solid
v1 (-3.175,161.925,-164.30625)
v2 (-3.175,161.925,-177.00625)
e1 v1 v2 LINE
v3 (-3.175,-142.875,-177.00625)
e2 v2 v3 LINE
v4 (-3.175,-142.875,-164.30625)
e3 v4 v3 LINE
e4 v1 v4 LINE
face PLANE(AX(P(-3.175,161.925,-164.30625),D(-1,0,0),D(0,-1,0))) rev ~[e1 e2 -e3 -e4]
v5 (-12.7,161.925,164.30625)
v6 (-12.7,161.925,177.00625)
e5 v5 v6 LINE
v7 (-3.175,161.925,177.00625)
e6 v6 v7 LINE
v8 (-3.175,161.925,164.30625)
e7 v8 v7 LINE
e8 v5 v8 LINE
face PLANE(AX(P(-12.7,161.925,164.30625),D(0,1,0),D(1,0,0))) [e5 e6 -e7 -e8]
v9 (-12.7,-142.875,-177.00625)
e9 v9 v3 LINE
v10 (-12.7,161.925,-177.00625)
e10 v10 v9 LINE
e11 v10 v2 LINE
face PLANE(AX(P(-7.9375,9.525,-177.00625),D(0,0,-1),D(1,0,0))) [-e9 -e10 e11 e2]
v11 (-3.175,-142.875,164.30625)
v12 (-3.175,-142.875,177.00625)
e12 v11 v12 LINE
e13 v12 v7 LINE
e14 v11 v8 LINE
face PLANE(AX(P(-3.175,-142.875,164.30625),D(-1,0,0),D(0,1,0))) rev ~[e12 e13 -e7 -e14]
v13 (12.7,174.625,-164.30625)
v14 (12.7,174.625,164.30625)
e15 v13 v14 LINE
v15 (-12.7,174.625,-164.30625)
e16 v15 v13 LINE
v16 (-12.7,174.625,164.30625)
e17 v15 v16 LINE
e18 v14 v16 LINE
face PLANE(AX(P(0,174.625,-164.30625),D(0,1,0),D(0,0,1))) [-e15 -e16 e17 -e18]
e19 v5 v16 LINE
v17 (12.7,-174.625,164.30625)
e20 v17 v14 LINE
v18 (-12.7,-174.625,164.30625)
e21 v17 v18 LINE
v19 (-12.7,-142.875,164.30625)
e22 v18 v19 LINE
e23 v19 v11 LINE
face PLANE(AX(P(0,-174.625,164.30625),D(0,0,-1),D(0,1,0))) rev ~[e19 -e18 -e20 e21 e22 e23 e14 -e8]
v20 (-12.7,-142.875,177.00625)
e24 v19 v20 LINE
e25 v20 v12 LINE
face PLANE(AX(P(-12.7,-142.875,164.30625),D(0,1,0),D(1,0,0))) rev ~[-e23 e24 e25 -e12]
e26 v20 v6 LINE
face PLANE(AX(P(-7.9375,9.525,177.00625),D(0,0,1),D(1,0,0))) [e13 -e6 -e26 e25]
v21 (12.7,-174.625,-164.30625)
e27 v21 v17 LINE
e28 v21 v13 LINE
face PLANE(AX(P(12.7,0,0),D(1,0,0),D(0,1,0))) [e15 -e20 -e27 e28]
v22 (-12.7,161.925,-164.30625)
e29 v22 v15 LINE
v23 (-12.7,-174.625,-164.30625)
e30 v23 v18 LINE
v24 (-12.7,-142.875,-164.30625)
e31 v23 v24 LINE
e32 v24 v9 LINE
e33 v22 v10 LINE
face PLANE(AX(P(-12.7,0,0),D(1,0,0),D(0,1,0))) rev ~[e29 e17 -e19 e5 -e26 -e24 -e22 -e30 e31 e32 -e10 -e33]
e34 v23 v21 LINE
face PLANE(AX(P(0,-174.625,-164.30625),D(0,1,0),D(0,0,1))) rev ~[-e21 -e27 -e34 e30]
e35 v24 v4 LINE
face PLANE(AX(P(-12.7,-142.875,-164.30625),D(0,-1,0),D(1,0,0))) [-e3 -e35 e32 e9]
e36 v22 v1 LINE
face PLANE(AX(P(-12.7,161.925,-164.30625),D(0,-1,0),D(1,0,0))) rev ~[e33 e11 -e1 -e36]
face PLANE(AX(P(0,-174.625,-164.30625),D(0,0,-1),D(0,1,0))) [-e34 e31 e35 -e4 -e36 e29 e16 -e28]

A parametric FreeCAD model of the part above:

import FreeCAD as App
import Part
import Sketcher
Q = App.Units.Quantity

doc = App.newDocument("Part")
params = doc.addObject("Spreadsheet::Sheet", "Params")
for row, (alias, value) in enumerate([
    ("sketch1_width", "13.75 in"),
    ("sketch1_height", "12.9375 in"),
    ("pad1_length", "1 in"),
    ("sketch2_height", "12 in"),
    ("sketch2_width", "0.375 in"),
    ("pad2_length", "0.5 in"),
    ("sketch3_height", "12 in"),
    ("sketch3_width", "0.375 in"),
    ("pad3_length", "0.5 in"),
], start=1):
    params.set(f"A{row}", alias)
    params.set(f"B{row}", "=" + value)
    params.setAlias(f"B{row}", alias)

body = doc.addObject("PartDesign::Body", "Body")

# Sketch on YZ plane
sketch1 = body.newObject("Sketcher::SketchObject", "Sketch")
sketch1.AttachmentSupport = (doc.getObject("YZ_Plane"), [""])
sketch1.MapMode = "FlatFace"
sketch1.addGeometry([
    Part.LineSegment(App.Vector(-175, 164, 0), App.Vector(-175, -164, 0)),
    Part.LineSegment(App.Vector(-175, -164, 0), App.Vector(175, -164, 0)),
    Part.LineSegment(App.Vector(175, -164, 0), App.Vector(175, 164, 0)),
    Part.LineSegment(App.Vector(175, 164, 0), App.Vector(-175, 164, 0)),
], False)
sketch1.addConstraint([
    Sketcher.Constraint("Coincident", 0, 2, 1, 1),
    Sketcher.Constraint("Coincident", 1, 2, 2, 1),
    Sketcher.Constraint("Coincident", 2, 2, 3, 1),
    Sketcher.Constraint("Coincident", 3, 2, 0, 1),
    Sketcher.Constraint("Vertical", 0),
    Sketcher.Constraint("Horizontal", 1),
    Sketcher.Constraint("Vertical", 2),
    Sketcher.Constraint("Horizontal", 3),
    Sketcher.Constraint("Symmetric", 0, 2, 2, 2, -1, 1),
    Sketcher.Constraint("DistanceX", 1, 1, 1, 2, Q("13.75 in")),
    Sketcher.Constraint("DistanceY", 0, 2, 0, 1, Q("12.9375 in")),
])
sketch1.setExpression("Constraints[9]", "Params.sketch1_width")
sketch1.setExpression("Constraints[10]", "Params.sketch1_height")
pad1 = body.newObject("PartDesign::Pad", "Pad")
pad1.Profile = sketch1
pad1.setExpression("Length", "Params.pad1_length")
pad1.Midplane = True

# Sketch on XY plane
sketch2 = body.newObject("Sketcher::SketchObject", "Sketch001")
sketch2.AttachmentSupport = (doc.getObject("XY_Plane"), [""])
sketch2.MapMode = "FlatFace"
sketch2.AttachmentOffset = App.Placement(App.Vector(0, 0, 6.46875 * 25.4), App.Rotation())
sketch2.addGeometry([
    Part.LineSegment(App.Vector(-13, 162, 0), App.Vector(-13, -143, 0)),
    Part.LineSegment(App.Vector(-13, -143, 0), App.Vector(-3, -143, 0)),
    Part.LineSegment(App.Vector(-3, -143, 0), App.Vector(-3, 162, 0)),
    Part.LineSegment(App.Vector(-3, 162, 0), App.Vector(-13, 162, 0)),
], False)
sketch2.addConstraint([
    Sketcher.Constraint("Coincident", 0, 2, 1, 1),
    Sketcher.Constraint("Coincident", 1, 2, 2, 1),
    Sketcher.Constraint("Coincident", 2, 2, 3, 1),
    Sketcher.Constraint("Coincident", 3, 2, 0, 1),
    Sketcher.Constraint("Vertical", 0),
    Sketcher.Constraint("Horizontal", 1),
    Sketcher.Constraint("Vertical", 2),
    Sketcher.Constraint("Horizontal", 3),
    Sketcher.Constraint("DistanceY", 0, 2, 0, 1, Q("12 in")),
    Sketcher.Constraint("DistanceX", 0, 2, -1, 1, Q("0.5 in")),
    Sketcher.Constraint("DistanceX", 1, 1, 1, 2, Q("0.375 in")),
    Sketcher.Constraint("DistanceY", 0, 2, -1, 1, Q("5.625 in")),
])
sketch2.setExpression("Constraints[8]", "Params.sketch2_height")
sketch2.setExpression("Constraints[10]", "Params.sketch2_width")
pad2 = body.newObject("PartDesign::Pad", "Pad001")
pad2.Profile = sketch2
pad2.setExpression("Length", "Params.pad2_length")

# Sketch on XY plane
sketch3 = body.newObject("Sketcher::SketchObject", "Sketch002")
sketch3.AttachmentSupport = (doc.getObject("XY_Plane"), [""])
sketch3.MapMode = "FlatFace"
sketch3.AttachmentOffset = App.Placement(App.Vector(0, 0, -6.46875 * 25.4), App.Rotation())
sketch3.addGeometry([
    Part.LineSegment(App.Vector(-13, -143, 0), App.Vector(-13, 162, 0)),
    Part.LineSegment(App.Vector(-13, 162, 0), App.Vector(-3, 162, 0)),
    Part.LineSegment(App.Vector(-3, 162, 0), App.Vector(-3, -143, 0)),
    Part.LineSegment(App.Vector(-3, -143, 0), App.Vector(-13, -143, 0)),
], False)
sketch3.addConstraint([
    Sketcher.Constraint("Coincident", 0, 2, 1, 1),
    Sketcher.Constraint("Coincident", 1, 2, 2, 1),
    Sketcher.Constraint("Coincident", 2, 2, 3, 1),
    Sketcher.Constraint("Coincident", 3, 2, 0, 1),
    Sketcher.Constraint("Vertical", 0),
    Sketcher.Constraint("Horizontal", 1),
    Sketcher.Constraint("Vertical", 2),
    Sketcher.Constraint("Horizontal", 3),
    Sketcher.Constraint("DistanceY", 0, 1, 0, 2, Q("12 in")),
    Sketcher.Constraint("DistanceX", 0, 2, -1, 1, Q("0.5 in")),
    Sketcher.Constraint("DistanceX", 1, 1, 1, 2, Q("0.375 in")),
    Sketcher.Constraint("DistanceY", -1, 1, 0, 2, Q("6.375 in")),
])
sketch3.setExpression("Constraints[8]", "Params.sketch3_height")
sketch3.setExpression("Constraints[10]", "Params.sketch3_width")
pad3 = body.newObject("PartDesign::Pad", "Pad002")
pad3.Profile = sketch3
pad3.setExpression("Length", "Params.pad3_length")
pad3.Reversed = True

doc.recompute()
